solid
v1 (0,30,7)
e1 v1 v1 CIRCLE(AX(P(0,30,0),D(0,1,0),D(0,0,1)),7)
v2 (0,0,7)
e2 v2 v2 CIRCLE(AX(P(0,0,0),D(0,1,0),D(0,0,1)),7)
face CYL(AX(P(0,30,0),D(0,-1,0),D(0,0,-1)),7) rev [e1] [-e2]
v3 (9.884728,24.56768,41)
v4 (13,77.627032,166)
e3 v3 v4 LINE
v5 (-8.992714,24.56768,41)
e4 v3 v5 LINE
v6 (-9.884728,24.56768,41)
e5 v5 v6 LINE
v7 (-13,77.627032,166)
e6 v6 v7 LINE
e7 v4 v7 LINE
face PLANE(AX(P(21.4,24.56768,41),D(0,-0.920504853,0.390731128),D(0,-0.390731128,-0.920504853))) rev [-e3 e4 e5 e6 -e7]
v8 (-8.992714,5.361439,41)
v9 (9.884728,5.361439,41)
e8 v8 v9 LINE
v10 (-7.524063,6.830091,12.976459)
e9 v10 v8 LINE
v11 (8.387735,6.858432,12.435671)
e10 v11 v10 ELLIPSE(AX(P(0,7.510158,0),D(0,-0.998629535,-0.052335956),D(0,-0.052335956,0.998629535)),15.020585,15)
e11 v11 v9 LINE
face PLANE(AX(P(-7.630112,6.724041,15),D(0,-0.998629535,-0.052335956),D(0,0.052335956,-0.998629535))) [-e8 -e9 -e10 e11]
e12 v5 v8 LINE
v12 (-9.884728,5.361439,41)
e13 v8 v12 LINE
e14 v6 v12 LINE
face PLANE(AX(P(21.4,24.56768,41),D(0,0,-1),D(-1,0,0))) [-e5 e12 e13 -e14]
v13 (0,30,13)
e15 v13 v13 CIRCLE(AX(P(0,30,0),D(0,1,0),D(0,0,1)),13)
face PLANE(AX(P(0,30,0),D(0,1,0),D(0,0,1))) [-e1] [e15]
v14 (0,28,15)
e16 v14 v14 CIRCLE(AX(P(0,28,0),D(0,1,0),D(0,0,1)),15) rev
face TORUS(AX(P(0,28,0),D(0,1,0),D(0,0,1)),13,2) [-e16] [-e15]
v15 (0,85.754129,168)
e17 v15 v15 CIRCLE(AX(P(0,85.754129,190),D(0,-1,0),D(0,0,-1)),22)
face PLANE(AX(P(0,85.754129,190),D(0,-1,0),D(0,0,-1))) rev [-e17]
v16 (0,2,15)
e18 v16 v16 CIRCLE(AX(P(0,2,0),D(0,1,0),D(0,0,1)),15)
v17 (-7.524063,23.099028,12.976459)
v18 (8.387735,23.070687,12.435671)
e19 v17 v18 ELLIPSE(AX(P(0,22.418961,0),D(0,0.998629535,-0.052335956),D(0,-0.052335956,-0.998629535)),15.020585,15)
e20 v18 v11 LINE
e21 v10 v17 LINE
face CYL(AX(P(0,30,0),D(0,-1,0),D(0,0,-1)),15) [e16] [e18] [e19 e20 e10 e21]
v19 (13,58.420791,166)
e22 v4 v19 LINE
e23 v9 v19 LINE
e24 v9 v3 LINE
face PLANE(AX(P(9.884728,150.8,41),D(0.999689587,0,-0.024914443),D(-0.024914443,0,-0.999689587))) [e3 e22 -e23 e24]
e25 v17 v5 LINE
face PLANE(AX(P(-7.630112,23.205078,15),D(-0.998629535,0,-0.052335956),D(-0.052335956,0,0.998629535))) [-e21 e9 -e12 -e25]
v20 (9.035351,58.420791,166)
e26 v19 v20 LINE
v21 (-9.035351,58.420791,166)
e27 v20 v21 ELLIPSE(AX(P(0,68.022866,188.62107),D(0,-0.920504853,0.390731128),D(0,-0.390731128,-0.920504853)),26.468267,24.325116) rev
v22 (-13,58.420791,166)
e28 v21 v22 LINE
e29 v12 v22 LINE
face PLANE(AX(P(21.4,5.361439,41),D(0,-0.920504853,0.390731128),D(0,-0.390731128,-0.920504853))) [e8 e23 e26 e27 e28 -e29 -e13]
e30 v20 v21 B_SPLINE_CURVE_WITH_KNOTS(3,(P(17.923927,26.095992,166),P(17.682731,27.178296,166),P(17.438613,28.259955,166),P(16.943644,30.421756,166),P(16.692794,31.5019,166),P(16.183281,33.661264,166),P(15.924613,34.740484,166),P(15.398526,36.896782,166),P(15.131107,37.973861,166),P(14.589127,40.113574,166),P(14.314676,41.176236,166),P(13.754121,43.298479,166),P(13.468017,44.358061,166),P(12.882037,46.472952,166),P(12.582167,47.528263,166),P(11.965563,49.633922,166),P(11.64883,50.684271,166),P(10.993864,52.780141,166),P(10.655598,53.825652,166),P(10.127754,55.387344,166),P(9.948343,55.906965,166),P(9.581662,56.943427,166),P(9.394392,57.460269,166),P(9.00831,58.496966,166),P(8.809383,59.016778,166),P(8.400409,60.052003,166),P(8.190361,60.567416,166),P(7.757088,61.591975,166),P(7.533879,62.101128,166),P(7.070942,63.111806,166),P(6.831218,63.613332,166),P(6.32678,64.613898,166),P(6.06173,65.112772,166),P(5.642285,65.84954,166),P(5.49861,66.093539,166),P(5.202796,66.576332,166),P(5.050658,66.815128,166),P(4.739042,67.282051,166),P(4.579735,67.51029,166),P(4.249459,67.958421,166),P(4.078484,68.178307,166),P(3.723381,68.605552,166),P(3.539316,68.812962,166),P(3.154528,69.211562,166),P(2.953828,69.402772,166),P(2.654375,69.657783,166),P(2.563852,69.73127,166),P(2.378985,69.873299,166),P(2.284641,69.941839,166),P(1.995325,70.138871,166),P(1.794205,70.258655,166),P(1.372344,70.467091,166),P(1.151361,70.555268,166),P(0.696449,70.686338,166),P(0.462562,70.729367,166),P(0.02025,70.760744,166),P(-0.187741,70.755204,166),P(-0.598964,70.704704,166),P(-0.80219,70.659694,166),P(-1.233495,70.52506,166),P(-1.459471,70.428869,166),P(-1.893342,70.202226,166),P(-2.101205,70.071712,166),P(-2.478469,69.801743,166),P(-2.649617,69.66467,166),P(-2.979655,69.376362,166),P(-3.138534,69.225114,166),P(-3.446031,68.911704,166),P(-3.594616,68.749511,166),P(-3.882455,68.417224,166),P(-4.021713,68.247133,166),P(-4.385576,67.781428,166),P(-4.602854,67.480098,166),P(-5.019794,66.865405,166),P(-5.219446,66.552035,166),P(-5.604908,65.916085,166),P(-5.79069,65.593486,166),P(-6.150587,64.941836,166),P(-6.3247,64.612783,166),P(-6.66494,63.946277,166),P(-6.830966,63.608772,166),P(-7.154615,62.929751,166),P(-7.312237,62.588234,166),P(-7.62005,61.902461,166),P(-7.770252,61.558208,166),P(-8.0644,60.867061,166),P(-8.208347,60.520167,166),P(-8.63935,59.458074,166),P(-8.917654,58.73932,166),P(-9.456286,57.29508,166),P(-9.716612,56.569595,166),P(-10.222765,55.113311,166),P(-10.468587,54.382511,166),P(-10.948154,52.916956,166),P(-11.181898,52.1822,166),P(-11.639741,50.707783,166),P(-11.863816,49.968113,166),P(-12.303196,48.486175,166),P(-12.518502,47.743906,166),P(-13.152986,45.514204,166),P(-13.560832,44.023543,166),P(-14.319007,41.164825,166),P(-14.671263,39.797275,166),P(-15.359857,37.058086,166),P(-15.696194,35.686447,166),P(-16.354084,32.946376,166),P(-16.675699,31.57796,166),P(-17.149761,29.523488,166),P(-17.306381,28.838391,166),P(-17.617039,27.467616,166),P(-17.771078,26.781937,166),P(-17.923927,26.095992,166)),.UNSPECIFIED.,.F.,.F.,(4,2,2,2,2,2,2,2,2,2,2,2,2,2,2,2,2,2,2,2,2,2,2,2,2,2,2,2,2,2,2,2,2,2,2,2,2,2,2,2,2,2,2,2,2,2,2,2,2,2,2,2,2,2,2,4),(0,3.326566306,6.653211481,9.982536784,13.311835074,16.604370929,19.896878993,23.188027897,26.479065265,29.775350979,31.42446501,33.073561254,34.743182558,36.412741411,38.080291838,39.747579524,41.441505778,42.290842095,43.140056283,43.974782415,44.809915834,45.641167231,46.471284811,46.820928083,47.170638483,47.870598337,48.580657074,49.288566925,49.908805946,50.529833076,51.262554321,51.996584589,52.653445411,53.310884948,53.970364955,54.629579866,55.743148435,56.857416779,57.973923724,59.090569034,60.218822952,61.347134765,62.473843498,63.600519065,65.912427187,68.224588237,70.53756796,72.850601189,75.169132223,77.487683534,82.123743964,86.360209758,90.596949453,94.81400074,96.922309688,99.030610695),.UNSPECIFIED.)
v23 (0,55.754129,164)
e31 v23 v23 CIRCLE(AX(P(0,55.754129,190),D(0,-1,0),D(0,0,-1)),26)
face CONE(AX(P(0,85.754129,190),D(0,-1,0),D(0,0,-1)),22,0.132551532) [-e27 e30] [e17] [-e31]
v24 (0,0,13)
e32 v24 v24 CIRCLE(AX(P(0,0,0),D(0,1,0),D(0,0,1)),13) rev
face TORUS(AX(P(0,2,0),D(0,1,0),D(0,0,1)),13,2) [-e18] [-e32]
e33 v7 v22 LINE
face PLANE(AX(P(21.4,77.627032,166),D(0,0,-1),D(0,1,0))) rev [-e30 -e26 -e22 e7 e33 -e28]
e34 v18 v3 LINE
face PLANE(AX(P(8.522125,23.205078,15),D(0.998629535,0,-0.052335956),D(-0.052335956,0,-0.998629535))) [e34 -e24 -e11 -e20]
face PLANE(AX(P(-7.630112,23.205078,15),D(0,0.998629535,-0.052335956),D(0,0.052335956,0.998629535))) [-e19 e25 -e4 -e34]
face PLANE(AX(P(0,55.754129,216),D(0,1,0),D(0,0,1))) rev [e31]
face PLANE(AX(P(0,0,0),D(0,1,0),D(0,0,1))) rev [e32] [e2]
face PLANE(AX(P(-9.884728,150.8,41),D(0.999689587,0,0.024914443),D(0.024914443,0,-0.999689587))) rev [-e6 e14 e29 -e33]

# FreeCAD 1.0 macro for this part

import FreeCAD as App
import Part
import Sketcher

V = App.Vector
Q = App.Units.Quantity


def edges_at(feature, points):
    """Names of the edges that pass closest to the given points."""
    edges = feature.Shape.Edges
    near = lambda p: min(range(len(edges)), key=lambda i: edges[i].distToShape(Part.Vertex(*p))[0])
    return sorted({f"Edge{near(p) + 1}" for p in points})

doc = App.newDocument("Part")
body = doc.addObject("PartDesign::Body", "Body")
body.AllowCompound = True

sketch1 = doc.addObject("Sketcher::SketchObject", "Sketch")
body.addObject(sketch1)
sketch1.AttachmentSupport = (doc.XZ_Plane, [""])
sketch1.MapMode = "FlatFace"
sketch1.addGeometry(Part.Circle(V(0, 0, 0), V(0, 0, 1), 15), False)
sketch1.addGeometry(Part.Circle(V(0, 0, 0), V(0, 0, 1), 7), False)
sketch1.addConstraint(Sketcher.Constraint("Coincident", 0, 3, -1, 1))
sketch1.addConstraint(Sketcher.Constraint("Coincident", 1, 3, -1, 1))
sketch1.addConstraint(Sketcher.Constraint("Diameter", 0, 30.0))
sketch1.addConstraint(Sketcher.Constraint("Diameter", 1, 14.0))
pad1 = doc.addObject("PartDesign::Pad", "Pad")
body.addObject(pad1)
pad1.Profile = sketch1
pad1.Length = 30
pad1.Reversed = True
doc.recompute()

fillet = doc.addObject("PartDesign::Fillet", "Fillet")
body.addObject(fillet)
fillet.Base = (pad1, edges_at(pad1, [(0, 0, -15), (0, 30, -15)]))
fillet.Radius = 2

sketch2 = doc.addObject("Sketcher::SketchObject", "Sketch001")
body.addObject(sketch2)
sketch2.AttachmentSupport = (doc.XY_Plane, [""])
sketch2.MapMode = "FlatFace"
sketch2.AttachmentOffset = App.Placement(V(0, 0, 15), App.Rotation())
sketch2.addGeometry(Part.LineSegment(V(-8, 23, 0), V(-8, 7, 0)), False)
sketch2.addGeometry(Part.LineSegment(V(-8, 7, 0), V(9, 7, 0)), False)
sketch2.addGeometry(Part.LineSegment(V(9, 7, 0), V(9, 23, 0)), False)
sketch2.addGeometry(Part.LineSegment(V(9, 23, 0), V(-8, 23, 0)), False)
sketch2.addConstraint(Sketcher.Constraint("Coincident", 0, 2, 1, 1))
sketch2.addConstraint(Sketcher.Constraint("Coincident", 1, 2, 2, 1))
sketch2.addConstraint(Sketcher.Constraint("Coincident", 2, 2, 3, 1))
sketch2.addConstraint(Sketcher.Constraint("Coincident", 3, 2, 0, 1))
sketch2.addConstraint(Sketcher.Constraint("Vertical", 0))
sketch2.addConstraint(Sketcher.Constraint("Horizontal", 1))
sketch2.addConstraint(Sketcher.Constraint("Vertical", 2))
sketch2.addConstraint(Sketcher.Constraint("Horizontal", 3))
sketch2.addConstraint(Sketcher.Constraint("DistanceX", 1, 1, 1, 2, 16.152237))
sketch2.addConstraint(Sketcher.Constraint("DistanceY", 0, 2, 0, 1, 16.481036))
sketch2.addConstraint(Sketcher.Constraint("DistanceY", -1, 1, 0, 2, 6.724041))
sketch2.addConstraint(Sketcher.Constraint("DistanceX", 0, 2, -1, 1, 7.630112))
pad2 = doc.addObject("PartDesign::Pad", "Pad001")
body.addObject(pad2)
pad2.Profile = sketch2
pad2.Length = 26
pad2.TaperAngle = 3

sketch3 = doc.addObject("Sketcher::SketchObject", "Sketch002")
body.addObject(sketch3)
sketch3.AttachmentSupport = (doc.XY_Plane, [""])
sketch3.MapMode = "FlatFace"
sketch3.AttachmentOffset = App.Placement(V(0, 0, 15), App.Rotation())
sketch3.addGeometry(Part.LineSegment(V(-8, 23, 0), V(-8, 7, 0)), False)
sketch3.addGeometry(Part.LineSegment(V(-8, 7, 0), V(9, 7, 0)), False)
sketch3.addGeometry(Part.LineSegment(V(9, 7, 0), V(9, 23, 0)), False)
sketch3.addGeometry(Part.LineSegment(V(9, 23, 0), V(-8, 23, 0)), False)
sketch3.addConstraint(Sketcher.Constraint("Coincident", 0, 2, 1, 1))
sketch3.addConstraint(Sketcher.Constraint("Coincident", 1, 2, 2, 1))
sketch3.addConstraint(Sketcher.Constraint("Coincident", 2, 2, 3, 1))
sketch3.addConstraint(Sketcher.Constraint("Coincident", 3, 2, 0, 1))
sketch3.addConstraint(Sketcher.Constraint("Vertical", 0))
sketch3.addConstraint(Sketcher.Constraint("Horizontal", 1))
sketch3.addConstraint(Sketcher.Constraint("Vertical", 2))
sketch3.addConstraint(Sketcher.Constraint("Horizontal", 3))
sketch3.addConstraint(Sketcher.Constraint("DistanceX", 1, 1, 1, 2, 16.152237))
sketch3.addConstraint(Sketcher.Constraint("DistanceY", 0, 2, 0, 1, 16.481036))
sketch3.addConstraint(Sketcher.Constraint("DistanceY", -1, 1, 0, 2, 6.724041))
sketch3.addConstraint(Sketcher.Constraint("DistanceX", 0, 2, -1, 1, 7.630112))
pad3 = doc.addObject("PartDesign::Pad", "Pad002")
body.addObject(pad3)
pad3.Profile = sketch3
pad3.Length = 5
pad3.Reversed = True
pad3.TaperAngle = -3

sketch4 = doc.addObject("Sketcher::SketchObject", "Sketch003")
body.addObject(sketch4)
sketch4.AttachmentSupport = (doc.YZ_Plane, [""])
sketch4.MapMode = "FlatFace"
sketch4.addGeometry(Part.LineSegment(V(5, 41, 0), V(25, 41, 0)), False)
sketch4.addGeometry(Part.LineSegment(V(25, 41, 0), V(78, 166, 0)), False)
sketch4.addGeometry(Part.LineSegment(V(78, 166, 0), V(58, 166, 0)), False)
sketch4.addGeometry(Part.LineSegment(V(58, 166, 0), V(5, 41, 0)), False)
sketch4.addConstraint(Sketcher.Constraint("Coincident", 0, 2, 1, 1))
sketch4.addConstraint(Sketcher.Constraint("Coincident", 1, 2, 2, 1))
sketch4.addConstraint(Sketcher.Constraint("Coincident", 2, 2, 3, 1))
sketch4.addConstraint(Sketcher.Constraint("Coincident", 3, 2, 0, 1))
sketch4.addConstraint(Sketcher.Constraint("Horizontal", 0))
sketch4.addConstraint(Sketcher.Constraint("Horizontal", 2))
sketch4.addConstraint(Sketcher.Constraint("Parallel", 1, 3))
sketch4.addConstraint(Sketcher.Constraint("Angle", 1, Q("67 deg")))
sketch4.addConstraint(Sketcher.Constraint("DistanceY", -1, 1, 0, 2, 41.0))
sketch4.addConstraint(Sketcher.Constraint("DistanceY", -1, 1, 1, 2, 166.0))
sketch4.addConstraint(Sketcher.Constraint("DistanceX", 0, 1, 0, 2, 19.206241))
sketch4.addConstraint(Sketcher.Constraint("DistanceX", -1, 1, 0, 2, 24.56768))
pad4 = doc.addObject("PartDesign::Pad", "Pad003")
body.addObject(pad4)
pad4.Profile = sketch4
pad4.Length = 42.8
pad4.Midplane = True

sketch5 = doc.addObject("Sketcher::SketchObject", "Sketch004")
body.addObject(sketch5)
sketch5.AttachmentSupport = (doc.XZ_Plane, [""])
sketch5.MapMode = "FlatFace"
sketch5.AttachmentOffset = App.Placement(V(0, 0, -50), App.Rotation())
sketch5.addGeometry(Part.LineSegment(V(10, 41, 0), V(13, 166, 0)), False)
sketch5.addGeometry(Part.LineSegment(V(13, 166, 0), V(33, 166, 0)), False)
sketch5.addGeometry(Part.LineSegment(V(33, 166, 0), V(33, 41, 0)), False)
sketch5.addGeometry(Part.LineSegment(V(33, 41, 0), V(10, 41, 0)), False)
sketch5.addConstraint(Sketcher.Constraint("Coincident", 0, 2, 1, 1))
sketch5.addConstraint(Sketcher.Constraint("Coincident", 1, 2, 2, 1))
sketch5.addConstraint(Sketcher.Constraint("Coincident", 2, 2, 3, 1))
sketch5.addConstraint(Sketcher.Constraint("Coincident", 3, 2, 0, 1))
sketch5.addConstraint(Sketcher.Constraint("Horizontal", 1))
sketch5.addConstraint(Sketcher.Constraint("Vertical", 2))
sketch5.addConstraint(Sketcher.Constraint("Horizontal", 3))
sketch5.addConstraint(Sketcher.Constraint("DistanceY", 2, 2, 2, 1, 125.0))
sketch5.addConstraint(Sketcher.Constraint("DistanceX", -1, 1, 0, 2, 13.0))
sketch5.addConstraint(Sketcher.Constraint("DistanceY", -1, 1, 0, 2, 166.0))
sketch5.addConstraint(Sketcher.Constraint("DistanceX", 1, 1, 1, 2, 20.350069))
sketch5.addConstraint(Sketcher.Constraint("DistanceX", 3, 2, 3, 1, 23.465342))
pocket1 = doc.addObject("PartDesign::Pocket", "Pocket")
body.addObject(pocket1)
pocket1.Profile = sketch5
pocket1.Length = 201.6
pocket1.Midplane = True
doc.recompute()

mirrored = doc.addObject("PartDesign::Mirrored", "Mirrored")
body.addObject(mirrored)
mirrored.Originals = [pocket1]
mirrored.MirrorPlane = (doc.YZ_Plane, [""])
body.Tip = mirrored

sketch6 = doc.addObject("Sketcher::SketchObject", "Sketch005")
body.addObject(sketch6)
sketch6.AttachmentSupport = (doc.YZ_Plane, [""])
sketch6.MapMode = "FlatFace"
sketch6.addGeometry(Part.LineSegment(V(86, 190, 0), V(86, 212, 0)), False)
sketch6.addGeometry(Part.LineSegment(V(86, 212, 0), V(56, 216, 0)), False)
sketch6.addGeometry(Part.LineSegment(V(56, 216, 0), V(56, 190, 0)), False)
sketch6.addGeometry(Part.LineSegment(V(56, 190, 0), V(86, 190, 0)), False)
sketch6.addGeometry(Part.LineSegment(V(56, 190, 0), V(86, 190, 0)), True)
sketch6.addConstraint(Sketcher.Constraint("Coincident", 0, 2, 1, 1))
sketch6.addConstraint(Sketcher.Constraint("Coincident", 1, 2, 2, 1))
sketch6.addConstraint(Sketcher.Constraint("Coincident", 2, 2, 3, 1))
sketch6.addConstraint(Sketcher.Constraint("Coincident", 3, 2, 0, 1))
sketch6.addConstraint(Sketcher.Constraint("Vertical", 0))
sketch6.addConstraint(Sketcher.Constraint("Vertical", 2))
sketch6.addConstraint(Sketcher.Constraint("Horizontal", 3))
sketch6.addConstraint(Sketcher.Constraint("Horizontal", 4))
sketch6.addConstraint(Sketcher.Constraint("Coincident", 4, 1, 2, 2))
sketch6.addConstraint(Sketcher.Constraint("Vertical", 0, 2, 4, 2))
sketch6.addConstraint(Sketcher.Constraint("DistanceX", 3, 1, 3, 2, 30.0))
sketch6.addConstraint(Sketcher.Constraint("DistanceY", 0, 1, 0, 2, 22.0))
sketch6.addConstraint(Sketcher.Constraint("DistanceY", 2, 2, 2, 1, 26.0))
sketch6.addConstraint(Sketcher.Constraint("DistanceY", -1, 1, 0, 2, 212.0))
sketch6.addConstraint(Sketcher.Constraint("DistanceX", -1, 1, 0, 2, 85.754129))
revolution = doc.addObject("PartDesign::Revolution", "Revolution")
body.addObject(revolution)
revolution.Profile = sketch6
revolution.ReferenceAxis = (sketch6, ["Axis0"])
revolution.Angle = 360

doc.recompute()
